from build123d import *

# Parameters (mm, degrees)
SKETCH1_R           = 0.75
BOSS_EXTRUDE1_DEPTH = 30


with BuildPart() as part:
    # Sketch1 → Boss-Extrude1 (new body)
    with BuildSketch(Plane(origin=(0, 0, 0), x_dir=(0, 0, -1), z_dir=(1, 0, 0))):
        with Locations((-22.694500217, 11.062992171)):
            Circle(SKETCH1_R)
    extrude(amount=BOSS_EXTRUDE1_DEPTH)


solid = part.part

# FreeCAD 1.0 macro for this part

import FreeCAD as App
import Part
import Sketcher
Q = App.Units.Quantity

doc = App.newDocument("Part")
body = doc.addObject("PartDesign::Body", "Body")

sketch1 = body.newObject("Sketcher::SketchObject", "Sketch")
sketch1.AttachmentSupport = (doc.getObject("YZ_Plane"), [""])
sketch1.MapMode = "FlatFace"
sketch1.addGeometry(Part.Circle(App.Vector(11.062992, 22.6945, 0), App.Vector(0, 0, 1), 0.75), False)
sketch1.addConstraint(Sketcher.Constraint("Diameter", 0, Q("1.5 mm")))
sketch1.addConstraint(Sketcher.Constraint("DistanceY", -1, 1, 0, 3, Q("22.6945 mm")))
sketch1.addConstraint(Sketcher.Constraint("DistanceX", -1, 1, 0, 3, Q("11.062992 mm")))
pad1 = body.newObject("PartDesign::Pad", "Pad")
pad1.Profile = sketch1
pad1.Length = 30

doc.recompute()
